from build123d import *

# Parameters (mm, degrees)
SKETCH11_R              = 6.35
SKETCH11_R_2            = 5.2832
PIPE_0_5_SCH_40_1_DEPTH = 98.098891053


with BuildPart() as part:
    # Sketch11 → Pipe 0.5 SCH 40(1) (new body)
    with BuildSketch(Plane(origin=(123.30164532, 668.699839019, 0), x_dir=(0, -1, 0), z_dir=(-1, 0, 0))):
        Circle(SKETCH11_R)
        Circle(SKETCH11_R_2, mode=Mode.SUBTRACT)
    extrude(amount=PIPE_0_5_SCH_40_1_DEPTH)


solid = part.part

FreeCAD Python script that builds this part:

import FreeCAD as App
import Part
import Sketcher
from FreeCAD import Vector
Q = App.Units.Quantity

doc = App.newDocument("Part")
body = doc.addObject("PartDesign::Body", "Body")

# Sketch on YZ plane
sketch1 = doc.addObject("Sketcher::SketchObject", "Sketch")
body.addObject(sketch1)
sketch1.AttachmentSupport = (doc.YZ_Plane, [""])
sketch1.MapMode = "FlatFace"
sketch1.AttachmentOffset = App.Placement(Vector(0, 0, 123.301645), App.Rotation())
sketch1.addGeometry([
    Part.Circle(Vector(669, 0, 0), Vector(0, 0, 1), 6),
    Part.Circle(Vector(669, 0, 0), Vector(0, 0, 1), 5),
], False)
sketch1.addConstraint([
    Sketcher.Constraint("Coincident", 1, 3, 0, 3),
    Sketcher.Constraint("PointOnObject", 0, 3, -1),
    Sketcher.Constraint("Diameter", 0, Q("0.5 in")),
    Sketcher.Constraint("Diameter", 1, Q("0.416 in")),
    Sketcher.Constraint("DistanceX", -1, 1, 0, 3, Q("668.699839 mm")),
])
pad1 = doc.addObject("PartDesign::Pad", "Pad")
body.addObject(pad1)
pad1.Profile = sketch1
pad1.Length = 98.098891
pad1.Reversed = True

doc.recompute()
